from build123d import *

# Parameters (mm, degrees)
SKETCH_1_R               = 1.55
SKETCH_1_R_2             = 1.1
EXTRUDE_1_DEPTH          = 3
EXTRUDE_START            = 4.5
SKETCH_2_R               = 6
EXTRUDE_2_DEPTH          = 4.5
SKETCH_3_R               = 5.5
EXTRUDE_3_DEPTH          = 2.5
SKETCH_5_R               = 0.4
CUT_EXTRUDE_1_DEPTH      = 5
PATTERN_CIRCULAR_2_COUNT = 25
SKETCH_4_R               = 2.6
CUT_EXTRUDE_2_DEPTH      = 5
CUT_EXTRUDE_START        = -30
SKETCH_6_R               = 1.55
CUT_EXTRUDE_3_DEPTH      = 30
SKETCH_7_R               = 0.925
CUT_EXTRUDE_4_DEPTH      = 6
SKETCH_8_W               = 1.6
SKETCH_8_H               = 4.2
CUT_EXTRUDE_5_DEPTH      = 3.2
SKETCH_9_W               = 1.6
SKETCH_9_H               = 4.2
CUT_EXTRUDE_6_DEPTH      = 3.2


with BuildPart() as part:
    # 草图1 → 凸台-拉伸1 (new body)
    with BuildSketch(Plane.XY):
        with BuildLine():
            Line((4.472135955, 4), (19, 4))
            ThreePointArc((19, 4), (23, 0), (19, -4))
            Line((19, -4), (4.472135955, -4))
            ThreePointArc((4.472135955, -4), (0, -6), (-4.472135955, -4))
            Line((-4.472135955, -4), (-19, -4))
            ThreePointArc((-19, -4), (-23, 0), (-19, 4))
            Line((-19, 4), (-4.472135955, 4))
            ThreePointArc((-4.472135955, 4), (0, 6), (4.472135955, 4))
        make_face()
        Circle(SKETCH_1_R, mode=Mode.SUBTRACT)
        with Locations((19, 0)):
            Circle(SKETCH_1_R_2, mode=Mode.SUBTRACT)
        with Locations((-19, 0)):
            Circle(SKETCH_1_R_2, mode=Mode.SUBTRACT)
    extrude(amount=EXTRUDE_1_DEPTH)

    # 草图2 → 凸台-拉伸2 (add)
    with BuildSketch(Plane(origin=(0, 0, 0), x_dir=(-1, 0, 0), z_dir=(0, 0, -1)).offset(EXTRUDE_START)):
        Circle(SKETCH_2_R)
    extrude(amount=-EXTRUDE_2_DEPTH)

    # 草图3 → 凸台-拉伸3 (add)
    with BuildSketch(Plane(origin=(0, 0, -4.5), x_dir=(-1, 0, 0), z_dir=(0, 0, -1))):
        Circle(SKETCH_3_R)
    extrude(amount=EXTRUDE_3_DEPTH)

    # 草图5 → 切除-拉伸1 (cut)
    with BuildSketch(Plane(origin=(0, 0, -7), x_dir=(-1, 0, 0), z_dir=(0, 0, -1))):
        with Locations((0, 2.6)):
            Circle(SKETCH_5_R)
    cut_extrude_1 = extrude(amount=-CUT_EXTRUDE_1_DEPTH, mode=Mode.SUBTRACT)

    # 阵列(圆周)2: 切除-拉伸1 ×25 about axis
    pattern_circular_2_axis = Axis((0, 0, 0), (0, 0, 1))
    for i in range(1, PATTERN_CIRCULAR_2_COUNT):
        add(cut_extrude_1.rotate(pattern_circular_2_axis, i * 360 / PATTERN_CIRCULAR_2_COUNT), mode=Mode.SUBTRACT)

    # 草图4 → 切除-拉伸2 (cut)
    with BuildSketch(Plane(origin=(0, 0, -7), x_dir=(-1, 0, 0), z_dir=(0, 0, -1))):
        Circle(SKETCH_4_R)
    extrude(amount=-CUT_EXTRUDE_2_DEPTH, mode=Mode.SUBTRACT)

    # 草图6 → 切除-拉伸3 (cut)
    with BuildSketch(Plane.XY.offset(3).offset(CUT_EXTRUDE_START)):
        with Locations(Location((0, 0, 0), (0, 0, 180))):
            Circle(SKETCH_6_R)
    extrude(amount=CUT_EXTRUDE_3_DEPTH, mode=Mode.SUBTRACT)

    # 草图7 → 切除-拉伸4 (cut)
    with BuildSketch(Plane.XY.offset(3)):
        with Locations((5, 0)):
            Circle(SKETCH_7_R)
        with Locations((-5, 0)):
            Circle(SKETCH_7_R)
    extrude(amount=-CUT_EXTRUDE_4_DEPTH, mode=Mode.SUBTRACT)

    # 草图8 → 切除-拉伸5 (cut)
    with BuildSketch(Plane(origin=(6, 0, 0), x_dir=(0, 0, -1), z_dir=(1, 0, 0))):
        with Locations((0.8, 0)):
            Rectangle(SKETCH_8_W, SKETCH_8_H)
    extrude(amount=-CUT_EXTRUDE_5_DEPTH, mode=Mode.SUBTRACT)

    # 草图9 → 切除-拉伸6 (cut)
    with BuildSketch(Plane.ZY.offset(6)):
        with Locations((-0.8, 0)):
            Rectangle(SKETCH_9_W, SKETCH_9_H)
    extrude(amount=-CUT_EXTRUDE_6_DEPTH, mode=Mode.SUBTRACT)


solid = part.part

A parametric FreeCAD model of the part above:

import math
import FreeCAD as App
import Part
import Sketcher
from FreeCAD import Vector


def add_polygon(sketch, points):
    """Adds a closed chain of lines whose ends are joined by coincident constraints."""
    first, n = sketch.GeometryCount, len(points)
    for a, b in zip(points, points[1:] + points[:1]):
        sketch.addGeometry(Part.LineSegment(App.Vector(*a, 0), App.Vector(*b, 0)), False)
    for i in range(n):
        sketch.addConstraint(Sketcher.Constraint("Coincident", first + i, 2, first + (i + 1) % n, 1))

doc = App.newDocument("Part")
params = doc.addObject("Spreadsheet::Sheet", "Params")
for row, (alias, value) in enumerate([
    ("sketch1_radius", "6 mm"),
    ("sketch1_radius2", "4 mm"),
    ("sketch1_diameter", "2.2 mm"),
    ("sketch1_diameter2", "3.1 mm"),
    ("pad1_length", "3 mm"),
    ("sketch2_diameter", "12 mm"),
    ("pad2_length", "4.5 mm"),
    ("sketch3_diameter", "11 mm"),
    ("pad3_length", "2.5 mm"),
    ("sketch4_diameter", "0.8 mm"),
    ("pocket1_length", "5 mm"),
    ("sketch5_diameter", "5.2 mm"),
    ("pocket2_length", "5 mm"),
    ("sketch6_diameter", "3.1 mm"),
    ("pocket3_length", "30 mm"),
    ("sketch7_diameter", "1.85 mm"),
    ("pocket4_length", "6 mm"),
    ("sketch8_width", "4.2 mm"),
    ("sketch8_height", "1.6 mm"),
    ("pocket5_length", "3.2 mm"),
    ("sketch9_width", "4.2 mm"),
    ("sketch9_height", "1.6 mm"),
    ("pocket6_length", "3.2 mm"),
], start=1):
    params.set(f"A{row}", alias)
    params.set(f"B{row}", "=" + value)
    params.setAlias(f"B{row}", alias)

body = doc.addObject("PartDesign::Body", "Body")

# Sketch on XY plane
sketch1 = body.newObject("Sketcher::SketchObject", "Sketch")
sketch1.AttachmentSupport = (doc.getObject("XY_Plane"), [""])
sketch1.MapMode = "FlatFace"
sketch1.addGeometry(Part.LineSegment(Vector(19, 4, 0), Vector(4.472136, 4, 0)), False)
sketch1.addGeometry(Part.ArcOfCircle(Part.Circle(Vector(0, 0, 0), Vector(0, 0, 1), 6), math.radians(41.810315), math.radians(138.189685)), False)
sketch1.addGeometry(Part.LineSegment(Vector(-4.472136, 4, 0), Vector(-19, 4, 0)), False)
sketch1.addGeometry(Part.ArcOfCircle(Part.Circle(Vector(-19, 0, 0), Vector(0, 0, 1), 4), math.radians(90), math.radians(270)), False)
sketch1.addGeometry(Part.LineSegment(Vector(-19, -4, 0), Vector(-4.472136, -4, 0)), False)
sketch1.addGeometry(Part.ArcOfCircle(Part.Circle(Vector(0, 0, 0), Vector(0, 0, 1), 6), math.radians(-138.189685), math.radians(-41.810315)), False)
sketch1.addGeometry(Part.LineSegment(Vector(4.472136, -4, 0), Vector(19, -4, 0)), False)
sketch1.addGeometry(Part.ArcOfCircle(Part.Circle(Vector(19, 0, 0), Vector(0, 0, 1), 4), math.radians(-90), math.radians(90)), False)
sketch1.addGeometry(Part.Circle(Vector(19, 0, 0), Vector(0, 0, 1), 1.1), False)
sketch1.addGeometry(Part.Circle(Vector(0, 0, 0), Vector(0, 0, 1), 1.55), False)
sketch1.addGeometry(Part.Circle(Vector(-19, 0, 0), Vector(0, 0, 1), 1.1), False)
sketch1.addConstraint(Sketcher.Constraint("Coincident", 0, 2, 1, 1))
sketch1.addConstraint(Sketcher.Constraint("Coincident", 1, 2, 2, 1))
sketch1.addConstraint(Sketcher.Constraint("Tangent", 2, 2, 3, 1))
sketch1.addConstraint(Sketcher.Constraint("Tangent", 3, 2, 4, 1))
sketch1.addConstraint(Sketcher.Constraint("Coincident", 4, 2, 5, 1))
sketch1.addConstraint(Sketcher.Constraint("Coincident", 5, 2, 6, 1))
sketch1.addConstraint(Sketcher.Constraint("Tangent", 6, 2, 7, 1))
sketch1.addConstraint(Sketcher.Constraint("Tangent", 7, 2, 0, 1))
sketch1.addConstraint(Sketcher.Constraint("Horizontal", 0))
sketch1.addConstraint(Sketcher.Constraint("Horizontal", 2))
sketch1.addConstraint(Sketcher.Constraint("Horizontal", 4))
sketch1.addConstraint(Sketcher.Constraint("Horizontal", 6))
sketch1.addConstraint(Sketcher.Constraint("Coincident", 1, 3, -1, 1))
sketch1.addConstraint(Sketcher.Constraint("Coincident", 5, 3, -1, 1))
sketch1.addConstraint(Sketcher.Constraint("Coincident", 9, 3, -1, 1))
sketch1.addConstraint(Sketcher.Constraint("Coincident", 8, 3, 7, 3))
sketch1.addConstraint(Sketcher.Constraint("Coincident", 10, 3, 3, 3))
sketch1.addConstraint(Sketcher.Constraint("Equal", 1, 5))
sketch1.addConstraint(Sketcher.Constraint("Equal", 3, 7))
sketch1.addConstraint(Sketcher.Constraint("Equal", 8, 10))
sketch1.addConstraint(Sketcher.Constraint("Symmetric", 3, 3, 7, 3, -1, 1))
sketch1.addConstraint(Sketcher.Constraint("PointOnObject", 3, 3, -1))
sketch1.addConstraint(Sketcher.Constraint("Radius", 1, 6.0))
sketch1.addConstraint(Sketcher.Constraint("Radius", 3, 4.0))
sketch1.addConstraint(Sketcher.Constraint("Diameter", 8, 2.2))
sketch1.addConstraint(Sketcher.Constraint("Diameter", 9, 3.1))
sketch1.addConstraint(Sketcher.Constraint("DistanceX", 3, 3, -1, 1, 19.0))
sketch1.setExpression("Constraints[22]", "Params.sketch1_radius")
sketch1.setExpression("Constraints[23]", "Params.sketch1_radius2")
sketch1.setExpression("Constraints[24]", "Params.sketch1_diameter")
sketch1.setExpression("Constraints[25]", "Params.sketch1_diameter2")
pad1 = body.newObject("PartDesign::Pad", "Pad")
pad1.Profile = sketch1
pad1.setExpression("Length", "Params.pad1_length")

# Sketch on XY plane
sketch2 = body.newObject("Sketcher::SketchObject", "Sketch001")
sketch2.AttachmentSupport = (doc.getObject("XY_Plane"), [""])
sketch2.MapMode = "FlatFace"
sketch2.AttachmentOffset = App.Placement(Vector(0, 0, -4.5), App.Rotation())
sketch2.addGeometry(Part.Circle(Vector(0, 0, 0), Vector(0, 0, 1), 6), False)
sketch2.addConstraint(Sketcher.Constraint("Coincident", 0, 3, -1, 1))
sketch2.addConstraint(Sketcher.Constraint("Diameter", 0, 12.0))
sketch2.setExpression("Constraints[1]", "Params.sketch2_diameter")
pad2 = body.newObject("PartDesign::Pad", "Pad001")
pad2.Profile = sketch2
pad2.setExpression("Length", "Params.pad2_length")

# Sketch on XY plane
sketch3 = body.newObject("Sketcher::SketchObject", "Sketch002")
sketch3.AttachmentSupport = (doc.getObject("XY_Plane"), [""])
sketch3.MapMode = "FlatFace"
sketch3.AttachmentOffset = App.Placement(Vector(0, 0, -4.5), App.Rotation())
sketch3.addGeometry(Part.Circle(Vector(0, 0, 0), Vector(0, 0, 1), 5.5), False)
sketch3.addConstraint(Sketcher.Constraint("Coincident", 0, 3, -1, 1))
sketch3.addConstraint(Sketcher.Constraint("Diameter", 0, 11.0))
sketch3.setExpression("Constraints[1]", "Params.sketch3_diameter")
pad3 = body.newObject("PartDesign::Pad", "Pad002")
pad3.Profile = sketch3
pad3.setExpression("Length", "Params.pad3_length")
pad3.Reversed = True

# Sketch on XY plane
sketch4 = body.newObject("Sketcher::SketchObject", "Sketch003")
sketch4.AttachmentSupport = (doc.getObject("XY_Plane"), [""])
sketch4.MapMode = "FlatFace"
sketch4.AttachmentOffset = App.Placement(Vector(0, 0, -7), App.Rotation())
sketch4.addGeometry(Part.Circle(Vector(0, 2.6, 0), Vector(0, 0, 1), 0.4), False)
sketch4.addConstraint(Sketcher.Constraint("PointOnObject", 0, 3, -2))
sketch4.addConstraint(Sketcher.Constraint("Diameter", 0, 0.8))
sketch4.addConstraint(Sketcher.Constraint("DistanceY", -1, 1, 0, 3, 2.6))
sketch4.setExpression("Constraints[1]", "Params.sketch4_diameter")
pocket1 = body.newObject("PartDesign::Pocket", "Pocket")
pocket1.Profile = sketch4
pocket1.setExpression("Length", "Params.pocket1_length")
pocket1.Reversed = True
doc.recompute()

polarpattern = body.newObject("PartDesign::PolarPattern", "PolarPattern")
polarpattern.Originals = [pocket1]
polarpattern.Axis = (doc.getObject("Z_Axis"), [""])
polarpattern.Angle = 360
polarpattern.Occurrences = 25
body.Tip = polarpattern

# Sketch on XY plane
sketch5 = body.newObject("Sketcher::SketchObject", "Sketch004")
sketch5.AttachmentSupport = (doc.getObject("XY_Plane"), [""])
sketch5.MapMode = "FlatFace"
sketch5.AttachmentOffset = App.Placement(Vector(0, 0, -7), App.Rotation())
sketch5.addGeometry(Part.Circle(Vector(0, 0, 0), Vector(0, 0, 1), 2.6), False)
sketch5.addConstraint(Sketcher.Constraint("Coincident", 0, 3, -1, 1))
sketch5.addConstraint(Sketcher.Constraint("Diameter", 0, 5.2))
sketch5.setExpression("Constraints[1]", "Params.sketch5_diameter")
pocket2 = body.newObject("PartDesign::Pocket", "Pocket001")
pocket2.Profile = sketch5
pocket2.setExpression("Length", "Params.pocket2_length")
pocket2.Reversed = True

# Sketch on XY plane
sketch6 = body.newObject("Sketcher::SketchObject", "Sketch005")
sketch6.AttachmentSupport = (doc.getObject("XY_Plane"), [""])
sketch6.MapMode = "FlatFace"
sketch6.AttachmentOffset = App.Placement(Vector(0, 0, -27), App.Rotation())
sketch6.addGeometry(Part.Circle(Vector(0, 0, 0), Vector(0, 0, 1), 1.55), False)
sketch6.addConstraint(Sketcher.Constraint("Coincident", 0, 3, -1, 1))
sketch6.addConstraint(Sketcher.Constraint("Diameter", 0, 3.1))
sketch6.setExpression("Constraints[1]", "Params.sketch6_diameter")
pocket3 = body.newObject("PartDesign::Pocket", "Pocket002")
pocket3.Profile = sketch6
pocket3.setExpression("Length", "Params.pocket3_length")
pocket3.Reversed = True

# Sketch on XY plane
sketch7 = body.newObject("Sketcher::SketchObject", "Sketch006")
sketch7.AttachmentSupport = (doc.getObject("XY_Plane"), [""])
sketch7.MapMode = "FlatFace"
sketch7.AttachmentOffset = App.Placement(Vector(0, 0, 3), App.Rotation())
sketch7.addGeometry(Part.Circle(Vector(5, 0, 0), Vector(0, 0, 1), 0.925), False)
sketch7.addGeometry(Part.Circle(Vector(-5, 0, 0), Vector(0, 0, 1), 0.925), False)
sketch7.addConstraint(Sketcher.Constraint("Equal", 0, 1))
sketch7.addConstraint(Sketcher.Constraint("Symmetric", 0, 3, 1, 3, -1, 1))
sketch7.addConstraint(Sketcher.Constraint("PointOnObject", 0, 3, -1))
sketch7.addConstraint(Sketcher.Constraint("Diameter", 0, 1.85))
sketch7.addConstraint(Sketcher.Constraint("DistanceX", -1, 1, 0, 3, 5.0))
sketch7.setExpression("Constraints[3]", "Params.sketch7_diameter")
pocket4 = body.newObject("PartDesign::Pocket", "Pocket003")
pocket4.Profile = sketch7
pocket4.setExpression("Length", "Params.pocket4_length")

# Sketch on YZ plane
sketch8 = body.newObject("Sketcher::SketchObject", "Sketch007")
sketch8.AttachmentSupport = (doc.getObject("YZ_Plane"), [""])
sketch8.MapMode = "FlatFace"
sketch8.AttachmentOffset = App.Placement(Vector(0, 0, 6), App.Rotation())
add_polygon(sketch8, [(2.1, 0), (-2.1, 0), (-2.1, -1.6), (2.1, -1.6)])  # lines 0-3
sketch8.addConstraint(Sketcher.Constraint("Horizontal", 0))
sketch8.addConstraint(Sketcher.Constraint("Vertical", 1))
sketch8.addConstraint(Sketcher.Constraint("Horizontal", 2))
sketch8.addConstraint(Sketcher.Constraint("Vertical", 3))
sketch8.addConstraint(Sketcher.Constraint("Symmetric", 0, 2, 3, 2, -1, 1))
sketch8.addConstraint(Sketcher.Constraint("DistanceX", 0, 2, 0, 1, 4.2))
sketch8.addConstraint(Sketcher.Constraint("DistanceY", 1, 2, 1, 1, 1.6))
sketch8.setExpression("Constraints[9]", "Params.sketch8_width")
sketch8.setExpression("Constraints[10]", "Params.sketch8_height")
pocket5 = body.newObject("PartDesign::Pocket", "Pocket004")
pocket5.Profile = sketch8
pocket5.setExpression("Length", "Params.pocket5_length")

# Sketch on YZ plane
sketch9 = body.newObject("Sketcher::SketchObject", "Sketch008")
sketch9.AttachmentSupport = (doc.getObject("YZ_Plane"), [""])
sketch9.MapMode = "FlatFace"
sketch9.AttachmentOffset = App.Placement(Vector(0, 0, -6), App.Rotation())
add_polygon(sketch9, [(2.1, -1.6), (-2.1, -1.6), (-2.1, 0), (2.1, 0)])  # lines 0-3
sketch9.addConstraint(Sketcher.Constraint("Horizontal", 0))
sketch9.addConstraint(Sketcher.Constraint("Vertical", 1))
sketch9.addConstraint(Sketcher.Constraint("Horizontal", 2))
sketch9.addConstraint(Sketcher.Constraint("Vertical", 3))
sketch9.addConstraint(Sketcher.Constraint("Symmetric", 1, 2, 2, 2, -1, 1))
sketch9.addConstraint(Sketcher.Constraint("DistanceX", 0, 2, 0, 1, 4.2))
sketch9.addConstraint(Sketcher.Constraint("DistanceY", 1, 1, 1, 2, 1.6))
sketch9.setExpression("Constraints[9]", "Params.sketch9_width")
sketch9.setExpression("Constraints[10]", "Params.sketch9_height")
pocket6 = body.newObject("PartDesign::Pocket", "Pocket005")
pocket6.Profile = sketch9
pocket6.setExpression("Length", "Params.pocket6_length")
pocket6.Reversed = True

doc.recompute()
